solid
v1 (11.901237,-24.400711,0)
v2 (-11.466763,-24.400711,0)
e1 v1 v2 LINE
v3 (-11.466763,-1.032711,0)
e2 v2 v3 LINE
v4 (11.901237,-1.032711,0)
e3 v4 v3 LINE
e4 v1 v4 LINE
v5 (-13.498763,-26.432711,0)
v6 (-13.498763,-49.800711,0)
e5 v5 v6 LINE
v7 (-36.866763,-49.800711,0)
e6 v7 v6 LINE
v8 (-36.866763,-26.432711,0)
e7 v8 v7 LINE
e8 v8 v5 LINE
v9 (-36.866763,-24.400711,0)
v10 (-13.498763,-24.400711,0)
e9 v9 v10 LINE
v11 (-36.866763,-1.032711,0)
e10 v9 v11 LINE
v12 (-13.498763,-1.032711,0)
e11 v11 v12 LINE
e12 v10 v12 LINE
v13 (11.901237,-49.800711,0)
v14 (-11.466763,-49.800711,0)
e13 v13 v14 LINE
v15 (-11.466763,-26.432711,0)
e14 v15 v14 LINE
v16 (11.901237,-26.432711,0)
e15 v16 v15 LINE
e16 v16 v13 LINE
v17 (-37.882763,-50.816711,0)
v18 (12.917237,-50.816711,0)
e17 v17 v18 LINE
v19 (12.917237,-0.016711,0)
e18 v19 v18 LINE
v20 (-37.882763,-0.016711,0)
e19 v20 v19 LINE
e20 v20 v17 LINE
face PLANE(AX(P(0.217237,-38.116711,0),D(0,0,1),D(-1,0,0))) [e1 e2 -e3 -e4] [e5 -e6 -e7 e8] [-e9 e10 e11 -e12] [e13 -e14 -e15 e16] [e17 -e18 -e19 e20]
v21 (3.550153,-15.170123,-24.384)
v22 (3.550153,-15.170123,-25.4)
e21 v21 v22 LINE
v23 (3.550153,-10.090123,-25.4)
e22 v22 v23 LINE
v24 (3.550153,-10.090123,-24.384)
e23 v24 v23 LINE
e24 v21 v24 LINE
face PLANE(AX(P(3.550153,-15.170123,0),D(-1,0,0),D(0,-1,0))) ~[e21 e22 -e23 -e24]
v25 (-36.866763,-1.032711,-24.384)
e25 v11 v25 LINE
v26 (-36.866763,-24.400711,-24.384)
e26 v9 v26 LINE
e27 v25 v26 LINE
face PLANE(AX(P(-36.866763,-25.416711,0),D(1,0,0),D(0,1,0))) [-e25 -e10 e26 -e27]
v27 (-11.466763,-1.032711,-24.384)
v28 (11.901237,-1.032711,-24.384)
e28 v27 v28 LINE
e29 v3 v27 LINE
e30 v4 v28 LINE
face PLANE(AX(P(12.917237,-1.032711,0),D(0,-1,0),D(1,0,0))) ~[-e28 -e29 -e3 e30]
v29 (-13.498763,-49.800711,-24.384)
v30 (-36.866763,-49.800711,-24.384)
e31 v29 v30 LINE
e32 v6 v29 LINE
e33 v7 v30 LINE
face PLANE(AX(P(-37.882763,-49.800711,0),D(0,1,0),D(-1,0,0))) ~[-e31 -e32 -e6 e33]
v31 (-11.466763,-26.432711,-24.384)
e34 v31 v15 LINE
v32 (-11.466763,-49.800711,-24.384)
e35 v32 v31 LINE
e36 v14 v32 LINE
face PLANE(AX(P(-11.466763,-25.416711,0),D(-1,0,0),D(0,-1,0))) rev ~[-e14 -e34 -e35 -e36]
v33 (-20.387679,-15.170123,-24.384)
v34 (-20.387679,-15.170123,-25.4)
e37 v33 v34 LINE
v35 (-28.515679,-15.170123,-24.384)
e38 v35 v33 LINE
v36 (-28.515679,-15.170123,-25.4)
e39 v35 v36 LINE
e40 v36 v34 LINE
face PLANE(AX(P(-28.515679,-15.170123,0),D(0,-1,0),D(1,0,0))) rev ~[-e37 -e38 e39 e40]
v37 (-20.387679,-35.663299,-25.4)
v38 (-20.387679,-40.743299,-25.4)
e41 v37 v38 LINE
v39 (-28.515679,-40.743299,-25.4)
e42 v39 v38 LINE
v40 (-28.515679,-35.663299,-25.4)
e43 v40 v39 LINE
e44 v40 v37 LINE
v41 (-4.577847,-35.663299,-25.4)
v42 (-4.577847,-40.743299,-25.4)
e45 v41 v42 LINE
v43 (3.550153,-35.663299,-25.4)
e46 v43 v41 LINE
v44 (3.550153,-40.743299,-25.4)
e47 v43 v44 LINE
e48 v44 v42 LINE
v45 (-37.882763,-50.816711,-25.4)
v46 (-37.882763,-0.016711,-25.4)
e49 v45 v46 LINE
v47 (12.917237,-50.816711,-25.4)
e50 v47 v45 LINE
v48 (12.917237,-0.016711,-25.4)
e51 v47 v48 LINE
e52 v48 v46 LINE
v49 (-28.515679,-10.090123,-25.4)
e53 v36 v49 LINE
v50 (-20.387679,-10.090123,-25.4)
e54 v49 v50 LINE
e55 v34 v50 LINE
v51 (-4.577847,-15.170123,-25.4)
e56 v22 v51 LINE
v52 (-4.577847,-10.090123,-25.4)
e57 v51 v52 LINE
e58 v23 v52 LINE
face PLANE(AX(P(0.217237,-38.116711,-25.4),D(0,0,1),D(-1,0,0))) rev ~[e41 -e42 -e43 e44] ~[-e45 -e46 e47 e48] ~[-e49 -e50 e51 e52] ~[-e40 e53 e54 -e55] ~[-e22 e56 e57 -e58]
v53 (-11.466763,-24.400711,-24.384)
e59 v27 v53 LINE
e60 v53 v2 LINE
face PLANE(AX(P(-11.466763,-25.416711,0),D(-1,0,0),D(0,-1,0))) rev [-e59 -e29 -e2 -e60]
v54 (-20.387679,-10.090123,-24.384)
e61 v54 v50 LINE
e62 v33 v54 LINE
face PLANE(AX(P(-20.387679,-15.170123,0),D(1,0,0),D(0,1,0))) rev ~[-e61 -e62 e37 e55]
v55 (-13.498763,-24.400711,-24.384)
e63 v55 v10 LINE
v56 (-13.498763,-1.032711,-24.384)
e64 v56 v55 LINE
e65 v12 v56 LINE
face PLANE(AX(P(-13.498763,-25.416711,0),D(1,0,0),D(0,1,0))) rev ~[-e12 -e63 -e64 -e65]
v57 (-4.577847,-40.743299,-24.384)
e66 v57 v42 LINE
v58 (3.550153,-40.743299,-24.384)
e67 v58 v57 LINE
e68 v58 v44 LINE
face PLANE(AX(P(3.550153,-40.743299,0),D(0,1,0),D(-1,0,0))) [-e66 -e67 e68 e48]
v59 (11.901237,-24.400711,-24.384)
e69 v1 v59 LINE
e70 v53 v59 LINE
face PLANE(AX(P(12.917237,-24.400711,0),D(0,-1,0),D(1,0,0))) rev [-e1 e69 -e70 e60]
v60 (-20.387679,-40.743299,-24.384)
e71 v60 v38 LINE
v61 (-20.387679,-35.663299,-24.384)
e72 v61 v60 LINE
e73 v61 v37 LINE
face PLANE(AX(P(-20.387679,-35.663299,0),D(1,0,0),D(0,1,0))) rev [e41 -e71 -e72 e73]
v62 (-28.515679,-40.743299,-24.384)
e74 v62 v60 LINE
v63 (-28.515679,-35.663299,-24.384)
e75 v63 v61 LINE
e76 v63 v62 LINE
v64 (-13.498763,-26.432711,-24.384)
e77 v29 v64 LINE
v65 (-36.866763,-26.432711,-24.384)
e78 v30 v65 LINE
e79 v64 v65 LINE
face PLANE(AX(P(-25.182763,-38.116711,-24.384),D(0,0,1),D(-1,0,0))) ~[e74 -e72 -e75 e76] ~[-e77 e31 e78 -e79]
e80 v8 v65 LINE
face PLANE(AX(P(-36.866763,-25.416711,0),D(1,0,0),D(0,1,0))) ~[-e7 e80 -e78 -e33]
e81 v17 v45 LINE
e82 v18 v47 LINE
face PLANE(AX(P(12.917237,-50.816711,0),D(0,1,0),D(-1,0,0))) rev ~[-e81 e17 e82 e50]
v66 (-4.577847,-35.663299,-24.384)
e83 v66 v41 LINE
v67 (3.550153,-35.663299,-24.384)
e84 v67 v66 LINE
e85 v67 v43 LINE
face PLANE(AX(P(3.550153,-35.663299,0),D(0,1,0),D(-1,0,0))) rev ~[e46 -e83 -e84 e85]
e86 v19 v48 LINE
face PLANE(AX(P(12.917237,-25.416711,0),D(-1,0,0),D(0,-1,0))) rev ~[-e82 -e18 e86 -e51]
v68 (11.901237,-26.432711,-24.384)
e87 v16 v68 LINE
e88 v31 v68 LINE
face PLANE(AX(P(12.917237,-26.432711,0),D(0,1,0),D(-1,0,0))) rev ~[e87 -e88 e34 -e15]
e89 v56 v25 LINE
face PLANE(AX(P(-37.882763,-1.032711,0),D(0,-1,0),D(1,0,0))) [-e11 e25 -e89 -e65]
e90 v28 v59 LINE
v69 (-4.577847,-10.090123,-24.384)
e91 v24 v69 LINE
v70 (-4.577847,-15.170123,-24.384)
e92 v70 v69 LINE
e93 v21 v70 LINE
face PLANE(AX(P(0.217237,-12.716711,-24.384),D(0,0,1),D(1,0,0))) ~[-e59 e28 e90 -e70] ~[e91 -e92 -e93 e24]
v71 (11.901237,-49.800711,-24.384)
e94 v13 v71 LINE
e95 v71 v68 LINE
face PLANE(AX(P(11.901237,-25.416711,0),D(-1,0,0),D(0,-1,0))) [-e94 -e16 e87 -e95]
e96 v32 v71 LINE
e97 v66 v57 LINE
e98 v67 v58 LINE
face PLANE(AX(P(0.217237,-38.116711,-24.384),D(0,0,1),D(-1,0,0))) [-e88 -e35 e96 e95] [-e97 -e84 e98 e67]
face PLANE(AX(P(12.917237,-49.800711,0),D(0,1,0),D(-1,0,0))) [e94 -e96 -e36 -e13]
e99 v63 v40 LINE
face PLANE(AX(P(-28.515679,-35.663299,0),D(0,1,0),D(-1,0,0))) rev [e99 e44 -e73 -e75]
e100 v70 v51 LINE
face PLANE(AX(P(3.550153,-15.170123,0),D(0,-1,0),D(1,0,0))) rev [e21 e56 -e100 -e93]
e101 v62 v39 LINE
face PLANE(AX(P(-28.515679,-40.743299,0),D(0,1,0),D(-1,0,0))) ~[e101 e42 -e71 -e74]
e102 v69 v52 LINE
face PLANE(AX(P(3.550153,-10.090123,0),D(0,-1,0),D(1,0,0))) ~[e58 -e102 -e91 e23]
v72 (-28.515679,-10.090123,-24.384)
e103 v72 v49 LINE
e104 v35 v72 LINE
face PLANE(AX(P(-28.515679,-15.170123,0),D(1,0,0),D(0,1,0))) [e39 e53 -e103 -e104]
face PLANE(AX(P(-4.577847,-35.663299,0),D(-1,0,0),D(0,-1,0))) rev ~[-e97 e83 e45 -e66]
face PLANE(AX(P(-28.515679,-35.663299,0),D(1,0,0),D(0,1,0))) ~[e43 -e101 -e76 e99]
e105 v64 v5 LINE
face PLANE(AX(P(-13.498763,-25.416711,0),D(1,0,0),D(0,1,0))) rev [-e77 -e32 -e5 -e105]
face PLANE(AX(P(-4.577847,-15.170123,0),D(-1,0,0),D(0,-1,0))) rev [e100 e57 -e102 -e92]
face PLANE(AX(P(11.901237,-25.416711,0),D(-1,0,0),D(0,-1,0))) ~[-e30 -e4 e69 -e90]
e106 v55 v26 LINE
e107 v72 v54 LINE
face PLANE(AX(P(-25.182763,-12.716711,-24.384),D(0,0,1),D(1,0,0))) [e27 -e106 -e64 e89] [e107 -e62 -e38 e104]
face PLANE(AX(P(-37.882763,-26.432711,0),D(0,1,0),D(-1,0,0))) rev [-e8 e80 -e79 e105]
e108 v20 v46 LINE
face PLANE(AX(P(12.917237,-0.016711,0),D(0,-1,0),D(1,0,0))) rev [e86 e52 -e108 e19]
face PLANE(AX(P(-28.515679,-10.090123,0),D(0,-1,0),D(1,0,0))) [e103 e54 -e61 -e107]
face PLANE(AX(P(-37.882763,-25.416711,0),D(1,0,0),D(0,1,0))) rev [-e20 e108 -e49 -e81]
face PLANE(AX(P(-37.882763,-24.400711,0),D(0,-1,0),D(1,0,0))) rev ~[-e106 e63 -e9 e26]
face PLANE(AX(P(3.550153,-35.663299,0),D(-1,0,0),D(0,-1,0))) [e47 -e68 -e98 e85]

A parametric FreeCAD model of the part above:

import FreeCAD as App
import Part
import Sketcher

V = App.Vector
Q = App.Units.Quantity


def faces_at(feature, points):
    """Names of the faces that lie closest to the given points."""
    faces = feature.Shape.Faces
    near = lambda p: min(range(len(faces)), key=lambda i: faces[i].distToShape(Part.Vertex(*p))[0])
    return sorted({f"Face{near(p) + 1}" for p in points})


def add_polygon(sketch, points):
    """Adds a closed chain of lines whose ends are joined by coincident constraints."""
    first, n = sketch.GeometryCount, len(points)
    for a, b in zip(points, points[1:] + points[:1]):
        sketch.addGeometry(Part.LineSegment(App.Vector(*a, 0), App.Vector(*b, 0)), False)
    for i in range(n):
        sketch.addConstraint(Sketcher.Constraint("Coincident", first + i, 2, first + (i + 1) % n, 1))

doc = App.newDocument("Part")
body = doc.addObject("PartDesign::Body", "Body")

# Sketch on XY plane
sketch1 = body.newObject("Sketcher::SketchObject", "Sketch")
sketch1.AttachmentSupport = (doc.getObject("XY_Plane"), [""])
sketch1.MapMode = "FlatFace"
add_polygon(sketch1, [(-38, 0), (-38, -25), (-12, -25), (-12, 0)])  # lines 0-3
sketch1.addConstraint([
    Sketcher.Constraint("Vertical", 0),
    Sketcher.Constraint("Horizontal", 1),
    Sketcher.Constraint("Vertical", 2),
    Sketcher.Constraint("Horizontal", 3),
    Sketcher.Constraint("Equal", 3, 0),
    Sketcher.Constraint("DistanceX", 1, 1, 1, 2, Q("1 in")),
    Sketcher.Constraint("DistanceY", 0, 2, -1, 1, 25.416711),
    Sketcher.Constraint("DistanceX", 0, 2, -1, 1, 37.882763),
])
pad1 = body.newObject("PartDesign::Pad", "Pad")
pad1.Profile = sketch1
pad1.Length = Q("1 in")
pad1.Reversed = True
doc.recompute()

thickness = body.newObject("PartDesign::Thickness", "Thickness")
thickness.Base = (pad1, faces_at(pad1, [(-25.183, -12.717, 0)]))
thickness.Value = Q("0.04 in")
thickness.Reversed = True
thickness.Join = "Arc"

# Sketch on XY plane
sketch2 = body.newObject("Sketcher::SketchObject", "Sketch001")
sketch2.AttachmentSupport = (doc.getObject("XY_Plane"), [""])
sketch2.MapMode = "FlatFace"
add_polygon(sketch2, [(-29, -10), (-29, -15), (-20, -15), (-20, -10)])  # lines 0-3
sketch2.addConstraint([
    Sketcher.Constraint("Vertical", 0),
    Sketcher.Constraint("Horizontal", 1),
    Sketcher.Constraint("Vertical", 2),
    Sketcher.Constraint("Horizontal", 3),
    Sketcher.Constraint("DistanceY", 0, 2, 0, 1, Q("0.2 in")),
    Sketcher.Constraint("DistanceX", 1, 1, 1, 2, Q("0.32 in")),
    Sketcher.Constraint("DistanceX", 0, 2, -1, 1, 28.515679),
    Sketcher.Constraint("DistanceY", 0, 2, -1, 1, 15.170123),
])
pocket1 = body.newObject("PartDesign::Pocket", "Pocket")
pocket1.Profile = sketch2
pocket1.Length = Q("1 in")
body2 = doc.addObject("PartDesign::Body", "Body001")
doc.recompute()

body2.BaseFeature = body
doc.recompute()

mirroring = doc.addObject("Part::Mirroring", "Mirroring")
mirroring.Source = body
mirroring.Base = V(-12.482763, -12.716711, -12.7)
mirroring.Normal = V(1, 0, 0)
body3 = doc.addObject("PartDesign::Body", "Body002")
body3.BaseFeature = mirroring
boolean = body2.newObject("PartDesign::Boolean", "Boolean")
boolean.Type = "Fuse"
boolean.addObjects([body3])
doc.recompute()
body4 = doc.addObject("PartDesign::Body", "Body003")
doc.recompute()

body4.BaseFeature = body2
doc.recompute()

mirroring2 = doc.addObject("Part::Mirroring", "Mirroring001")
mirroring2.Source = body2
mirroring2.Base = V(-12.482763, -25.416711, -12.7)
mirroring2.Normal = V(0, -1, 0)
body5 = doc.addObject("PartDesign::Body", "Body004")
body5.BaseFeature = mirroring2
boolean2 = body4.newObject("PartDesign::Boolean", "Boolean001")
boolean2.Type = "Fuse"
boolean2.addObjects([body5])
doc.recompute()
mirroring.Visibility = False
mirroring2.Visibility = False

doc.recompute()
